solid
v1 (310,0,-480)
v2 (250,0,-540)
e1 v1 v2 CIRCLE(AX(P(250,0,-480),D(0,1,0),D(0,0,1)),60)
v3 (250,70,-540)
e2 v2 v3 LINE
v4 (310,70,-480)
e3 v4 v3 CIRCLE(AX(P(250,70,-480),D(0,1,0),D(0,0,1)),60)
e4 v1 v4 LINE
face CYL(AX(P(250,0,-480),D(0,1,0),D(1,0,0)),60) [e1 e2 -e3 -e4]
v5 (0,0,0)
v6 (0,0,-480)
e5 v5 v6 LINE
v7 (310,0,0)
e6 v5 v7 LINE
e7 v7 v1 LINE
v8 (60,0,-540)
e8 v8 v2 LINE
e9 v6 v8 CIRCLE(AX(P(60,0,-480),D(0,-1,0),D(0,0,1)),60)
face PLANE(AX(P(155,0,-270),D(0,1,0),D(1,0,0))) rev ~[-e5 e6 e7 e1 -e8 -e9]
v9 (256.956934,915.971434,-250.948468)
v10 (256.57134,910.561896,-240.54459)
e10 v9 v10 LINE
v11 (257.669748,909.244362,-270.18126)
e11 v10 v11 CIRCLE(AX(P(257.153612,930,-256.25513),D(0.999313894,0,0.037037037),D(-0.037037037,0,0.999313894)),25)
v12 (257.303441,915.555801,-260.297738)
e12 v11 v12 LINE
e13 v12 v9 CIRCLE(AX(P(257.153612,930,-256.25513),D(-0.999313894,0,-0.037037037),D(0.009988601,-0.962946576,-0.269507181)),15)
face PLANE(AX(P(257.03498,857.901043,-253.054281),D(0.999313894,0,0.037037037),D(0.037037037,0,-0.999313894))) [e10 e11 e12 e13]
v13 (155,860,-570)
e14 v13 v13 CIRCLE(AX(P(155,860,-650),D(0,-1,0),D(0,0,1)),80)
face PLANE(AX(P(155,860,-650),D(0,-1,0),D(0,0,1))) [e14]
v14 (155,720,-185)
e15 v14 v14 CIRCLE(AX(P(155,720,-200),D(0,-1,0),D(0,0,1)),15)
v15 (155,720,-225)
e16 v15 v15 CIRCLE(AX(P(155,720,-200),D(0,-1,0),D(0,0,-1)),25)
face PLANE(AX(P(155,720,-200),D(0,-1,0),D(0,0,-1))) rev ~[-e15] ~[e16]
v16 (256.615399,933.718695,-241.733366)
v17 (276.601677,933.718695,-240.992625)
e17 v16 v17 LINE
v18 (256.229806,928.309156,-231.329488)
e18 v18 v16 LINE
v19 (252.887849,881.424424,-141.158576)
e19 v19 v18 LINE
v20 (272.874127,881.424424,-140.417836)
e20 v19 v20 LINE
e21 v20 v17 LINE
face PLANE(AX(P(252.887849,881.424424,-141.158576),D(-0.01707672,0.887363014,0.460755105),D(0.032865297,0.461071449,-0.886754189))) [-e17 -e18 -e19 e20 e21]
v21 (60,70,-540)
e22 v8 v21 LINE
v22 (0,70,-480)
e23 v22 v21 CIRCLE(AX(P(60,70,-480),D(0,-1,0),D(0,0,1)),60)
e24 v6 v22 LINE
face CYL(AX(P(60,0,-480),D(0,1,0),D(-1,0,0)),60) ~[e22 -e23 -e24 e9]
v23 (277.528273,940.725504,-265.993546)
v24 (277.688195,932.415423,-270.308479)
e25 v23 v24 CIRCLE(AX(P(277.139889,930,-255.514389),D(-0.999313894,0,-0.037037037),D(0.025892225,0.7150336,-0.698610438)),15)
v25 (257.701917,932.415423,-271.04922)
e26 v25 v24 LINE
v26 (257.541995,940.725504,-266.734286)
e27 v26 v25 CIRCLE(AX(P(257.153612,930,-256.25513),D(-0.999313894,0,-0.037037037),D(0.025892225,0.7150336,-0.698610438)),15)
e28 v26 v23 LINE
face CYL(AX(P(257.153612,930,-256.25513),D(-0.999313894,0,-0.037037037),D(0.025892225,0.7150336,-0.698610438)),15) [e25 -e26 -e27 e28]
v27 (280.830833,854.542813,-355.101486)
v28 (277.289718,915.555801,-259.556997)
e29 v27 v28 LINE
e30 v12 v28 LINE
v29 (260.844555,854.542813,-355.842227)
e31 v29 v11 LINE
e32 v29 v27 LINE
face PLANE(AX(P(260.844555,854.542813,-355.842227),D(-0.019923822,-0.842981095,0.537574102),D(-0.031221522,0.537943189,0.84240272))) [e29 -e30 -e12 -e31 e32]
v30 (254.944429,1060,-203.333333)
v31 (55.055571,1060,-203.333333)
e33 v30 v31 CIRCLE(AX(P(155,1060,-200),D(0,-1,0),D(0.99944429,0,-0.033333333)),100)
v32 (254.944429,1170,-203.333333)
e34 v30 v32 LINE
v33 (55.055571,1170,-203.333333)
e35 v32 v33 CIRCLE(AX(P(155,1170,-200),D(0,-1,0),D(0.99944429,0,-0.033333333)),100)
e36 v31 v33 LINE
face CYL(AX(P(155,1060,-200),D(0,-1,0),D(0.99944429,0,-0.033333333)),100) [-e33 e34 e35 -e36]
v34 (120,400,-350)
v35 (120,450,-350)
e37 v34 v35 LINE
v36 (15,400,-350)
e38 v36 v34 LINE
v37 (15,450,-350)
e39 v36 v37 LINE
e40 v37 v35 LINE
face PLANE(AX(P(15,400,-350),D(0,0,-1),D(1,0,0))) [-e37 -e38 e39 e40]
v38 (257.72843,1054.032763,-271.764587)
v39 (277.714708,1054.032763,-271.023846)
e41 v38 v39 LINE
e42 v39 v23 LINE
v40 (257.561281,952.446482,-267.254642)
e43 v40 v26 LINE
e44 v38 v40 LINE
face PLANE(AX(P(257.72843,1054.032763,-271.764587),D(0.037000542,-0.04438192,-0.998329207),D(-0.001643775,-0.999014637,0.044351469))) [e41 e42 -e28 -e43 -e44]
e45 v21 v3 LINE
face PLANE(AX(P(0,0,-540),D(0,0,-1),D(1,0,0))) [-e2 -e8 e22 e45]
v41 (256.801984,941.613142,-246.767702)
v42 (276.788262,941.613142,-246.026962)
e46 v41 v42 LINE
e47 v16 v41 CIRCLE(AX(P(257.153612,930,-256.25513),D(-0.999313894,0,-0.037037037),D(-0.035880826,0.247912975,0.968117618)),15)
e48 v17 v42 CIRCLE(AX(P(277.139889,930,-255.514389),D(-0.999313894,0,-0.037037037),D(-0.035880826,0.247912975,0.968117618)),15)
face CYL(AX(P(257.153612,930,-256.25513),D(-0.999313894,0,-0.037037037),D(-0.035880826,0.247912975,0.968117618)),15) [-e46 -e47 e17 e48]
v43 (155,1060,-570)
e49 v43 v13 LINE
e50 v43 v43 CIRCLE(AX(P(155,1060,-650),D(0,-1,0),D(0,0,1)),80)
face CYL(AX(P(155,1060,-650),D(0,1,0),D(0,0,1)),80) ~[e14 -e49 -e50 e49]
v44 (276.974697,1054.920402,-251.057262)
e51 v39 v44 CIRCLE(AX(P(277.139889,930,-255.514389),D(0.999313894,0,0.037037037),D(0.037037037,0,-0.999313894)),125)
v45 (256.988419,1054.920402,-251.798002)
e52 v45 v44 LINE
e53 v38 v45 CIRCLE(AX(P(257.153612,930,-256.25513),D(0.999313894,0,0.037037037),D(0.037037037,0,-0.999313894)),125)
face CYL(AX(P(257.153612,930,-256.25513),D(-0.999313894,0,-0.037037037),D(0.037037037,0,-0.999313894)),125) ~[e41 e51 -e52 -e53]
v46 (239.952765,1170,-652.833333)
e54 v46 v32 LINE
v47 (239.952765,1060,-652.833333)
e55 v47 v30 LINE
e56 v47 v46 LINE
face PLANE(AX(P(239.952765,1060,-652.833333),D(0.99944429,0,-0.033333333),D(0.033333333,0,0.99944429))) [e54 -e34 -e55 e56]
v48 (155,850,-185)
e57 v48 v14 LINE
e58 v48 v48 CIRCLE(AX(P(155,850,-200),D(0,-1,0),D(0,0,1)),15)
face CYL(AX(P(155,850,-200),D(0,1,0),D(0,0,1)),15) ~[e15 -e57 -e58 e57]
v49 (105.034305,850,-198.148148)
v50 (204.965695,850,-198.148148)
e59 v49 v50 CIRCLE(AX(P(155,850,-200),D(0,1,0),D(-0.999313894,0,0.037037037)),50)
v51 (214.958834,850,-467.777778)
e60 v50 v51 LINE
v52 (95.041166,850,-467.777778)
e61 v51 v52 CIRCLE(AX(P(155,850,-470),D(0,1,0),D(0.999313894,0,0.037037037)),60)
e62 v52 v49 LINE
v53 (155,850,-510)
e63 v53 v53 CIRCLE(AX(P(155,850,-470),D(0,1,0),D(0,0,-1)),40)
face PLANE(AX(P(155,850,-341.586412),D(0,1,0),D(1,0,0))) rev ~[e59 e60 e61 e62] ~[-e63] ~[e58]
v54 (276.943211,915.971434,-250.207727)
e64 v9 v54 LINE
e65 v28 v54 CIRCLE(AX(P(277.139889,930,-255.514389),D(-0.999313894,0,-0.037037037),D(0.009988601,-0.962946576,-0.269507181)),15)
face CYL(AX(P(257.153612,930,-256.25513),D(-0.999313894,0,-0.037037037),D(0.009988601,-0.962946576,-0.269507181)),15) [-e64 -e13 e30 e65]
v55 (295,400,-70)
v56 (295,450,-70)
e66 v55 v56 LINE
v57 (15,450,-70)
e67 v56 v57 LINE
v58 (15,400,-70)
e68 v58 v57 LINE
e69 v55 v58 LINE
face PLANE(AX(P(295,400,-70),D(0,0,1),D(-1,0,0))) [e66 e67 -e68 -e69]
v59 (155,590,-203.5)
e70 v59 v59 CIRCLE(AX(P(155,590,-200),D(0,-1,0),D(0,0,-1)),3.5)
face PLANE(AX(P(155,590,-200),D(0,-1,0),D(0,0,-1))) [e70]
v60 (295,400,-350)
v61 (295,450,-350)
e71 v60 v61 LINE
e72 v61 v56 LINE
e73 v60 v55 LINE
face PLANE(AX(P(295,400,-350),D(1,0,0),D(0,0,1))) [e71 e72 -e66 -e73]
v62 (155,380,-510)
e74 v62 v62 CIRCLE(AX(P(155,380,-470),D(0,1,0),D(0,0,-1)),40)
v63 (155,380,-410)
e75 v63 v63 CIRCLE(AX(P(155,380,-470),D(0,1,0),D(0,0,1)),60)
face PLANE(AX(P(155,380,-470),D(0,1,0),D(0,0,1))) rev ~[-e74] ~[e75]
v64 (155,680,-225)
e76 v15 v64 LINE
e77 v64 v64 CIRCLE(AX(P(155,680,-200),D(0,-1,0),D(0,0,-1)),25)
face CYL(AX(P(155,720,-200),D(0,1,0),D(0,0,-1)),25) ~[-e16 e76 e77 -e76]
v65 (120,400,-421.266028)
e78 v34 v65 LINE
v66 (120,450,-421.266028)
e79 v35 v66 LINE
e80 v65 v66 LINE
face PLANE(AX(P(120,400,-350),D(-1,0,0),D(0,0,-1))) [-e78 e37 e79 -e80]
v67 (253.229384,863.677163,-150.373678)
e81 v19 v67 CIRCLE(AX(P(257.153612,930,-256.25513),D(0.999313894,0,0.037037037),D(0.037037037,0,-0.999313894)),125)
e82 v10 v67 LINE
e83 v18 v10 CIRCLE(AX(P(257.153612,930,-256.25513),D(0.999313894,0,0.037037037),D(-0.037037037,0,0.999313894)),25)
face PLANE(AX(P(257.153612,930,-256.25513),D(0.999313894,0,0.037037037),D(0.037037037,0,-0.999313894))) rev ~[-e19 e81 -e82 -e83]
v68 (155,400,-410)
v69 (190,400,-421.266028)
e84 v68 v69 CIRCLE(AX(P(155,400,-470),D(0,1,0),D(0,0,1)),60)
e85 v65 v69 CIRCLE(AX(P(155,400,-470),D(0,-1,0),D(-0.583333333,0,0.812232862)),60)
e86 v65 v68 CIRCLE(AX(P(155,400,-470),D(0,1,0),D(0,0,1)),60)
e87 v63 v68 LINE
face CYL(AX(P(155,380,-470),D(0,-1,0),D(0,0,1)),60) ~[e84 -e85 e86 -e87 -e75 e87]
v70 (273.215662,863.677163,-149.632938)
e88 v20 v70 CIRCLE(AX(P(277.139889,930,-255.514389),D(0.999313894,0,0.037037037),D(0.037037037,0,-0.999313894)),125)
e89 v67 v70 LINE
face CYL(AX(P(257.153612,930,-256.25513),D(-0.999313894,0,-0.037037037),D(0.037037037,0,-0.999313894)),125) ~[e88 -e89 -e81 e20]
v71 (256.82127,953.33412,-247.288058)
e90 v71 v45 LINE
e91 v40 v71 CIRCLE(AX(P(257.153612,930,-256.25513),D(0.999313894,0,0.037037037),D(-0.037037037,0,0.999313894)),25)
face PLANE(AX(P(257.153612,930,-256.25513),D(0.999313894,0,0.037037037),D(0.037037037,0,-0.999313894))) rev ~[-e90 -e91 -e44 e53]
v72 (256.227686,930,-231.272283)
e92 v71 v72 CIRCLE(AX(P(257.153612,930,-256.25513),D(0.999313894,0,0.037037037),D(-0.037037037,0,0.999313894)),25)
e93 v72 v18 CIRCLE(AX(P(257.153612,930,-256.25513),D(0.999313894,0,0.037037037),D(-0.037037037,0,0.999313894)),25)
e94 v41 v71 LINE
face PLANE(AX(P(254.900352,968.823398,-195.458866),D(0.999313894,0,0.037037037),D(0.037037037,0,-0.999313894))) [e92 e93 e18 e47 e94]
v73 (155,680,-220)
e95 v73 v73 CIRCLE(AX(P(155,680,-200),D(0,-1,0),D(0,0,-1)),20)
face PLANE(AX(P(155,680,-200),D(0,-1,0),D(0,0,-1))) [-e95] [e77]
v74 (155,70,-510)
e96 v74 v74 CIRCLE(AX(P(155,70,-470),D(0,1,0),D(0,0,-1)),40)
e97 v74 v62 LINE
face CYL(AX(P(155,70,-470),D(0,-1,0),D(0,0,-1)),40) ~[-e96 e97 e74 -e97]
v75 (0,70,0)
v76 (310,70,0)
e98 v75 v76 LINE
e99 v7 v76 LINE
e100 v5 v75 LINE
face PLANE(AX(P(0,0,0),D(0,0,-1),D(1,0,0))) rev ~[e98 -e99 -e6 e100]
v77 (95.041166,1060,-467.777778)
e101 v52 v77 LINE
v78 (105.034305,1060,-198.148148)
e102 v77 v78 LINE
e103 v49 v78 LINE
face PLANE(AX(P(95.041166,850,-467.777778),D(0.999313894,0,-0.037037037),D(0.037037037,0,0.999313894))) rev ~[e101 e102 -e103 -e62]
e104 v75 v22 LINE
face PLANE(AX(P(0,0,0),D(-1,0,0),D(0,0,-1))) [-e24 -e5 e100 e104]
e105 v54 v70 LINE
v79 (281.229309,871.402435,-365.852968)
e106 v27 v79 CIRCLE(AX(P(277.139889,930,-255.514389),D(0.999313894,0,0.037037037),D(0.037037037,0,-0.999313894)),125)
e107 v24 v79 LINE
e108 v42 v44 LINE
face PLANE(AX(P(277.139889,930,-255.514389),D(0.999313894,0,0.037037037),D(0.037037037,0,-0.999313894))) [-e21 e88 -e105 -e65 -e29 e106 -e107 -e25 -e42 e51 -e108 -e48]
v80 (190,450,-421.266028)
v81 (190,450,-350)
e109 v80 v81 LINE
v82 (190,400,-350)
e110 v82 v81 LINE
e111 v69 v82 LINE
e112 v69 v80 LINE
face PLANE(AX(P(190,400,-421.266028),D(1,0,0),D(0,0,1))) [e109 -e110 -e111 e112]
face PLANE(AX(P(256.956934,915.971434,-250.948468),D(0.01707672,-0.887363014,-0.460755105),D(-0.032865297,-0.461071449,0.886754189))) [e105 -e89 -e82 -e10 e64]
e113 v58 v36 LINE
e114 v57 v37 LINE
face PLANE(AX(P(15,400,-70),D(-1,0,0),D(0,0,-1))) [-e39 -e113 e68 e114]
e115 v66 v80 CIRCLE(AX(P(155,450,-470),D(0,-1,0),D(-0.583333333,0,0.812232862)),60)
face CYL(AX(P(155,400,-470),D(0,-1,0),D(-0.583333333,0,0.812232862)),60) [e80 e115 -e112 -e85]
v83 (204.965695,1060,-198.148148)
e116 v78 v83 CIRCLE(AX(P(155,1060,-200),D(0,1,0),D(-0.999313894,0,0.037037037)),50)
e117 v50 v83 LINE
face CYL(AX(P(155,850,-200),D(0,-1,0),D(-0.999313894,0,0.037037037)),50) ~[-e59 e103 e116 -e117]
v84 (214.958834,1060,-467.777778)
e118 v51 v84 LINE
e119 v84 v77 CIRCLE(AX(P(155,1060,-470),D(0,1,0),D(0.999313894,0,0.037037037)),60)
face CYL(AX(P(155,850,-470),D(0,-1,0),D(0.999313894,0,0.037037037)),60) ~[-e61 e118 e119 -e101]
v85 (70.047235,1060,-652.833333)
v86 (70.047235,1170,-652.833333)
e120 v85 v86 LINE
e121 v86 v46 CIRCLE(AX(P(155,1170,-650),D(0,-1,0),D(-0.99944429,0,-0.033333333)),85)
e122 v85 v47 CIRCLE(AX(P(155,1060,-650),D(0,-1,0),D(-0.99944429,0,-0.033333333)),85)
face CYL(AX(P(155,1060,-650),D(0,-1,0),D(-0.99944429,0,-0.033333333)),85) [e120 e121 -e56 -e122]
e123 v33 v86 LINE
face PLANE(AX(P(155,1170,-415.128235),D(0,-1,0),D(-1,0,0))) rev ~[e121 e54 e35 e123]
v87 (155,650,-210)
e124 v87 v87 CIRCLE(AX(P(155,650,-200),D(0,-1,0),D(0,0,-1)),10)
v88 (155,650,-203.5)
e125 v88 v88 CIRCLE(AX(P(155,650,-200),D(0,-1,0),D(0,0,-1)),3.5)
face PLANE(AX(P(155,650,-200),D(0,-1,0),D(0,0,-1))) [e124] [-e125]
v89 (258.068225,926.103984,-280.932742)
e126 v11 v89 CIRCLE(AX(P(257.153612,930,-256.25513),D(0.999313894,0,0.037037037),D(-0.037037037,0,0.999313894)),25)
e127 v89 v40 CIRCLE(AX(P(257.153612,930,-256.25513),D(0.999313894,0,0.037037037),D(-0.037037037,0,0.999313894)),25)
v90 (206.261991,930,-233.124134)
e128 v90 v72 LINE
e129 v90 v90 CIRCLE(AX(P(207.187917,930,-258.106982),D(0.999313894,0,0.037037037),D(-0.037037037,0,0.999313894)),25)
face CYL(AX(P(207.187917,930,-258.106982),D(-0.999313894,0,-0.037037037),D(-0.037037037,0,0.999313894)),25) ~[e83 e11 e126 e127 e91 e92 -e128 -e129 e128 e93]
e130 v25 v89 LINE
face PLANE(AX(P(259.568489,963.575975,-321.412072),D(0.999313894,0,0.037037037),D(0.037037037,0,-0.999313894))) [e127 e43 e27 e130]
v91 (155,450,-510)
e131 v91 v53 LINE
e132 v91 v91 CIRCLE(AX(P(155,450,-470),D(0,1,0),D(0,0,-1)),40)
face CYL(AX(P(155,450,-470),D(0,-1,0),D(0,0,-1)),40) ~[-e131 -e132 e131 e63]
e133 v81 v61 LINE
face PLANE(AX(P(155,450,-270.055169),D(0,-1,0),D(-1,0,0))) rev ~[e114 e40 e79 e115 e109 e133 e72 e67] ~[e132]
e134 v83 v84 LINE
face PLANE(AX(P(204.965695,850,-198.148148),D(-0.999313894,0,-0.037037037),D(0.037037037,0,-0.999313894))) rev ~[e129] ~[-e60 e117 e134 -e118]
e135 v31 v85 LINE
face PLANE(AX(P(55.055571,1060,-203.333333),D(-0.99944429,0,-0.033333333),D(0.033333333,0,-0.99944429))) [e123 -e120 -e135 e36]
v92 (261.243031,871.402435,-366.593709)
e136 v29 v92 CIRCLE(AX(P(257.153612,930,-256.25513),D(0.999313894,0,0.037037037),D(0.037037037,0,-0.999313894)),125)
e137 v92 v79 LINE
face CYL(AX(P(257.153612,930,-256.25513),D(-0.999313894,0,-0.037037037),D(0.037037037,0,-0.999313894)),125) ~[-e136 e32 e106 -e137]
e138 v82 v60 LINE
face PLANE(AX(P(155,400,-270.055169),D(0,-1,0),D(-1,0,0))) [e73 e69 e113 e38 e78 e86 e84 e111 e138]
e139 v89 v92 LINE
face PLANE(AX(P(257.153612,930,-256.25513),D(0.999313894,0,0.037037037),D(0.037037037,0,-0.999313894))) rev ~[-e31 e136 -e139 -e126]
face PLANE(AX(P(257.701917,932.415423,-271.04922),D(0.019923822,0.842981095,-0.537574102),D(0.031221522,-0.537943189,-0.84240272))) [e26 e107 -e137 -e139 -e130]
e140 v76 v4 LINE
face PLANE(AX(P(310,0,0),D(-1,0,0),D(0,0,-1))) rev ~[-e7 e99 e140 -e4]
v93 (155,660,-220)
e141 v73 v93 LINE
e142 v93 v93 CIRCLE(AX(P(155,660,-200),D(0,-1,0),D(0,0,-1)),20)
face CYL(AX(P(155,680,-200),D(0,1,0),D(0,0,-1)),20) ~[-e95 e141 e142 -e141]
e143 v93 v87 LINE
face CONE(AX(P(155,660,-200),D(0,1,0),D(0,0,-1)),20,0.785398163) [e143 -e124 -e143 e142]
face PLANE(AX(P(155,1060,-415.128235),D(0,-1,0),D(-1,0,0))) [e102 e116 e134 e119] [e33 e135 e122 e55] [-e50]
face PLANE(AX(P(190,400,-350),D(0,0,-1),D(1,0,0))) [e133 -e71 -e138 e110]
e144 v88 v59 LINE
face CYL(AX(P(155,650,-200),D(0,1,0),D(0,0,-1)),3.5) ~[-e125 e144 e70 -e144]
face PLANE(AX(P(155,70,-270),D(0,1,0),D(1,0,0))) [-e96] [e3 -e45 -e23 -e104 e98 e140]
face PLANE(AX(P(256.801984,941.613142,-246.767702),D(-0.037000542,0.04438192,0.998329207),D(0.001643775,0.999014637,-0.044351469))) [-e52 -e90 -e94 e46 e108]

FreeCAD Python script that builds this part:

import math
import FreeCAD as App
import Part
import Sketcher

V = App.Vector
Q = App.Units.Quantity


def edges_at(feature, points):
    """Names of the edges that pass closest to the given points."""
    edges = feature.Shape.Edges
    near = lambda p: min(range(len(edges)), key=lambda i: edges[i].distToShape(Part.Vertex(*p))[0])
    return sorted({f"Edge{near(p) + 1}" for p in points})

doc = App.newDocument("Part")
body = doc.addObject("PartDesign::Body", "Body")

# Sketch on XZ plane
sketch1 = doc.addObject("Sketcher::SketchObject", "Sketch")
body.addObject(sketch1)
sketch1.AttachmentSupport = (doc.XZ_Plane, [""])
sketch1.MapMode = "FlatFace"
sketch1.addGeometry(Part.LineSegment(V(0, -540, 0), V(0, 0, 0)), False)
sketch1.addGeometry(Part.LineSegment(V(0, 0, 0), V(310, 0, 0)), False)
sketch1.addGeometry(Part.LineSegment(V(310, 0, 0), V(310, -540, 0)), False)
sketch1.addGeometry(Part.LineSegment(V(310, -540, 0), V(0, -540, 0)), False)
sketch1.addConstraint(Sketcher.Constraint("Coincident", 0, 2, 1, 1))
sketch1.addConstraint(Sketcher.Constraint("Coincident", 1, 2, 2, 1))
sketch1.addConstraint(Sketcher.Constraint("Coincident", 2, 2, 3, 1))
sketch1.addConstraint(Sketcher.Constraint("Coincident", 3, 2, 0, 1))
sketch1.addConstraint(Sketcher.Constraint("Vertical", 0))
sketch1.addConstraint(Sketcher.Constraint("Horizontal", 1))
sketch1.addConstraint(Sketcher.Constraint("Vertical", 2))
sketch1.addConstraint(Sketcher.Constraint("Horizontal", 3))
sketch1.addConstraint(Sketcher.Constraint("Coincident", 0, 2, -1, 1))
sketch1.addConstraint(Sketcher.Constraint("DistanceX", 1, 1, 1, 2, Q("310 mm")))
sketch1.addConstraint(Sketcher.Constraint("DistanceY", 0, 1, 0, 2, Q("540 mm")))
pad1 = doc.addObject("PartDesign::Pad", "Pad")
body.addObject(pad1)
pad1.Profile = sketch1
pad1.Length = 70
pad1.Reversed = True
doc.recompute()

fillet = doc.addObject("PartDesign::Fillet", "Fillet")
body.addObject(fillet)
fillet.Base = (pad1, edges_at(pad1, [(0, 35, -540), (310, 35, -540)]))
fillet.Radius = 60

# Sketch on XZ plane
sketch2 = doc.addObject("Sketcher::SketchObject", "Sketch001")
body.addObject(sketch2)
sketch2.AttachmentSupport = (doc.XZ_Plane, [""])
sketch2.MapMode = "FlatFace"
sketch2.AttachmentOffset = App.Placement(V(0, 0, -70), App.Rotation())
sketch2.addGeometry(Part.Circle(V(155, -470, 0), V(0, 0, 1), 40), False)
sketch2.addConstraint(Sketcher.Constraint("Diameter", 0, Q("80 mm")))
sketch2.addConstraint(Sketcher.Constraint("DistanceX", -1, 1, 0, 3, Q("155 mm")))
sketch2.addConstraint(Sketcher.Constraint("DistanceY", 0, 3, -1, 1, Q("470 mm")))
pad2 = doc.addObject("PartDesign::Pad", "Pad001")
body.addObject(pad2)
pad2.Profile = sketch2
pad2.Length = 310
pad2.Reversed = True

# Sketch on XZ plane
sketch3 = doc.addObject("Sketcher::SketchObject", "Sketch002")
body.addObject(sketch3)
sketch3.AttachmentSupport = (doc.XZ_Plane, [""])
sketch3.MapMode = "FlatFace"
sketch3.AttachmentOffset = App.Placement(V(0, 0, -380), App.Rotation())
sketch3.addGeometry(Part.Circle(V(155, -470, 0), V(0, 0, 1), 60), False)
sketch3.addConstraint(Sketcher.Constraint("Diameter", 0, Q("120 mm")))
sketch3.addConstraint(Sketcher.Constraint("DistanceX", -1, 1, 0, 3, Q("155 mm")))
sketch3.addConstraint(Sketcher.Constraint("DistanceY", 0, 3, -1, 1, Q("470 mm")))
pad3 = doc.addObject("PartDesign::Pad", "Pad002")
body.addObject(pad3)
pad3.Profile = sketch3
pad3.Length = 20
pad3.Reversed = True

# Sketch on XZ plane
sketch4 = doc.addObject("Sketcher::SketchObject", "Sketch003")
body.addObject(sketch4)
sketch4.AttachmentSupport = (doc.XZ_Plane, [""])
sketch4.MapMode = "FlatFace"
sketch4.AttachmentOffset = App.Placement(V(0, 0, -400), App.Rotation())
sketch4.addGeometry(Part.LineSegment(V(295, -350, 0), V(190, -350, 0)), False)
sketch4.addGeometry(Part.LineSegment(V(190, -350, 0), V(190, -421.266028, 0)), False)
sketch4.addGeometry(Part.ArcOfCircle(Part.Circle(V(155, -470, 0), V(0, 0, 1), 60), math.radians(125.685335), math.radians(414.314665)), False)
sketch4.addGeometry(Part.LineSegment(V(120, -421.266028, 0), V(120, -350, 0)), False)
sketch4.addGeometry(Part.LineSegment(V(120, -350, 0), V(15, -350, 0)), False)
sketch4.addGeometry(Part.LineSegment(V(15, -350, 0), V(15, -70, 0)), False)
sketch4.addGeometry(Part.LineSegment(V(15, -70, 0), V(295, -70, 0)), False)
sketch4.addGeometry(Part.LineSegment(V(295, -70, 0), V(295, -350, 0)), False)
sketch4.addConstraint(Sketcher.Constraint("Coincident", 0, 2, 1, 1))
sketch4.addConstraint(Sketcher.Constraint("Coincident", 1, 2, 2, 2))
sketch4.addConstraint(Sketcher.Constraint("Coincident", 2, 1, 3, 1))
sketch4.addConstraint(Sketcher.Constraint("Coincident", 3, 2, 4, 1))
sketch4.addConstraint(Sketcher.Constraint("Coincident", 4, 2, 5, 1))
sketch4.addConstraint(Sketcher.Constraint("Coincident", 5, 2, 6, 1))
sketch4.addConstraint(Sketcher.Constraint("Coincident", 6, 2, 7, 1))
sketch4.addConstraint(Sketcher.Constraint("Coincident", 7, 2, 0, 1))
sketch4.addConstraint(Sketcher.Constraint("Horizontal", 0))
sketch4.addConstraint(Sketcher.Constraint("Vertical", 1))
sketch4.addConstraint(Sketcher.Constraint("Vertical", 3))
sketch4.addConstraint(Sketcher.Constraint("Horizontal", 4))
sketch4.addConstraint(Sketcher.Constraint("Vertical", 5))
sketch4.addConstraint(Sketcher.Constraint("Horizontal", 6))
sketch4.addConstraint(Sketcher.Constraint("Vertical", 7))
sketch4.addConstraint(Sketcher.Constraint("Horizontal", 1, 2, 2, 1))
sketch4.addConstraint(Sketcher.Constraint("Horizontal", 0, 2, 3, 2))
sketch4.addConstraint(Sketcher.Constraint("Equal", 0, 4))
sketch4.addConstraint(Sketcher.Constraint("Equal", 6, 5))
sketch4.addConstraint(Sketcher.Constraint("Radius", 2, Q("60 mm")))
sketch4.addConstraint(Sketcher.Constraint("DistanceX", 0, 2, 0, 1, Q("105 mm")))
sketch4.addConstraint(Sketcher.Constraint("DistanceX", 6, 1, 6, 2, Q("280 mm")))
sketch4.addConstraint(Sketcher.Constraint("DistanceX", -1, 1, 2, 3, Q("155 mm")))
sketch4.addConstraint(Sketcher.Constraint("DistanceY", 2, 3, -1, 1, Q("470 mm")))
sketch4.addConstraint(Sketcher.Constraint("DistanceY", 0, 2, -1, 1, Q("350 mm")))
pad4 = doc.addObject("PartDesign::Pad", "Pad003")
body.addObject(pad4)
pad4.Profile = sketch4
pad4.Length = 50
pad4.Reversed = True

# Sketch on XZ plane
sketch5 = doc.addObject("Sketcher::SketchObject", "Sketch004")
body.addObject(sketch5)
sketch5.AttachmentSupport = (doc.XZ_Plane, [""])
sketch5.MapMode = "FlatFace"
sketch5.AttachmentOffset = App.Placement(V(0, 0, -450), App.Rotation())
sketch5.addGeometry(Part.Circle(V(155, -470, 0), V(0, 0, 1), 40), False)
sketch5.addConstraint(Sketcher.Constraint("Diameter", 0, Q("80 mm")))
sketch5.addConstraint(Sketcher.Constraint("DistanceX", -1, 1, 0, 3, Q("155 mm")))
sketch5.addConstraint(Sketcher.Constraint("DistanceY", 0, 3, -1, 1, Q("470 mm")))
pad5 = doc.addObject("PartDesign::Pad", "Pad004")
body.addObject(pad5)
pad5.Profile = sketch5
pad5.Length = 400
pad5.Reversed = True

# Sketch on XZ plane
sketch6 = doc.addObject("Sketcher::SketchObject", "Sketch005")
body.addObject(sketch6)
sketch6.AttachmentSupport = (doc.XZ_Plane, [""])
sketch6.MapMode = "FlatFace"
sketch6.AttachmentOffset = App.Placement(V(0, 0, -850), App.Rotation())
sketch6.addGeometry(Part.LineSegment(V(95.041166, -467.777778, 0), V(105.034305, -198.148148, 0)), False)
sketch6.addGeometry(Part.ArcOfCircle(Part.Circle(V(155, -200, 0), V(0, 0, 1), 50), math.radians(2.122551), math.radians(177.877449)), False)
sketch6.addGeometry(Part.LineSegment(V(204.965695, -198.148148, 0), V(214.958834, -467.777778, 0)), False)
sketch6.addGeometry(Part.ArcOfCircle(Part.Circle(V(155, -470, 0), V(0, 0, 1), 60), math.radians(177.877449), math.radians(362.122551)), False)
sketch6.addConstraint(Sketcher.Constraint("Tangent", 0, 2, 1, 2))
sketch6.addConstraint(Sketcher.Constraint("Tangent", 1, 1, 2, 1))
sketch6.addConstraint(Sketcher.Constraint("Tangent", 2, 2, 3, 2))
sketch6.addConstraint(Sketcher.Constraint("Tangent", 3, 1, 0, 1))
sketch6.addConstraint(Sketcher.Constraint("Horizontal", 0, 2, 1, 1))
sketch6.addConstraint(Sketcher.Constraint("Radius", 1, Q("50 mm")))
sketch6.addConstraint(Sketcher.Constraint("Radius", 3, Q("60 mm")))
sketch6.addConstraint(Sketcher.Constraint("DistanceX", -1, 1, 1, 3, Q("155 mm")))
sketch6.addConstraint(Sketcher.Constraint("DistanceY", 1, 3, -1, 1, Q("200 mm")))
sketch6.addConstraint(Sketcher.Constraint("DistanceY", 3, 3, -1, 1, Q("470 mm")))
pad6 = doc.addObject("PartDesign::Pad", "Pad005")
body.addObject(pad6)
pad6.Profile = sketch6
pad6.Length = 210
pad6.Reversed = True

# Sketch on XZ plane
sketch7 = doc.addObject("Sketcher::SketchObject", "Sketch006")
body.addObject(sketch7)
sketch7.AttachmentSupport = (doc.XZ_Plane, [""])
sketch7.MapMode = "FlatFace"
sketch7.AttachmentOffset = App.Placement(V(0, 0, -1060), App.Rotation())
sketch7.addGeometry(Part.LineSegment(V(70.047235, -652.833333, 0), V(55.055571, -203.333333, 0)), False)
sketch7.addGeometry(Part.ArcOfCircle(Part.Circle(V(155, -200, 0), V(0, 0, 1), 100), math.radians(-1.910213), math.radians(181.910213)), False)
sketch7.addGeometry(Part.LineSegment(V(254.944429, -203.333333, 0), V(239.952765, -652.833333, 0)), False)
sketch7.addGeometry(Part.ArcOfCircle(Part.Circle(V(155, -650, 0), V(0, 0, 1), 85), math.radians(-178.089787), math.radians(-1.910213)), False)
sketch7.addConstraint(Sketcher.Constraint("Tangent", 0, 2, 1, 2))
sketch7.addConstraint(Sketcher.Constraint("Tangent", 1, 1, 2, 1))
sketch7.addConstraint(Sketcher.Constraint("Tangent", 2, 2, 3, 2))
sketch7.addConstraint(Sketcher.Constraint("Tangent", 3, 1, 0, 1))
sketch7.addConstraint(Sketcher.Constraint("Horizontal", 0, 2, 1, 1))
sketch7.addConstraint(Sketcher.Constraint("Radius", 1, Q("100 mm")))
sketch7.addConstraint(Sketcher.Constraint("Radius", 3, Q("85 mm")))
sketch7.addConstraint(Sketcher.Constraint("DistanceX", -1, 1, 1, 3, Q("155 mm")))
sketch7.addConstraint(Sketcher.Constraint("DistanceY", 1, 3, -1, 1, Q("200 mm")))
sketch7.addConstraint(Sketcher.Constraint("DistanceY", 3, 3, -1, 1, Q("650 mm")))
pad7 = doc.addObject("PartDesign::Pad", "Pad006")
body.addObject(pad7)
pad7.Profile = sketch7
pad7.Length = 110
pad7.Reversed = True

# Sketch on XZ plane
sketch8 = doc.addObject("Sketcher::SketchObject", "Sketch007")
body.addObject(sketch8)
sketch8.AttachmentSupport = (doc.XZ_Plane, [""])
sketch8.MapMode = "FlatFace"
sketch8.AttachmentOffset = App.Placement(V(0, 0, -1060), App.Rotation())
sketch8.addGeometry(Part.Circle(V(155, -650, 0), V(0, 0, 1), 80), False)
sketch8.addConstraint(Sketcher.Constraint("Diameter", 0, Q("160 mm")))
sketch8.addConstraint(Sketcher.Constraint("DistanceX", -1, 1, 0, 3, Q("155 mm")))
sketch8.addConstraint(Sketcher.Constraint("DistanceY", 0, 3, -1, 1, Q("650 mm")))
pad8 = doc.addObject("PartDesign::Pad", "Pad007")
body.addObject(pad8)
pad8.Profile = sketch8
pad8.Length = 200

# Sketch on XZ plane
sketch9 = doc.addObject("Sketcher::SketchObject", "Sketch008")
body.addObject(sketch9)
sketch9.AttachmentSupport = (doc.XZ_Plane, [""])
sketch9.MapMode = "FlatFace"
sketch9.AttachmentOffset = App.Placement(V(0, 0, -850), App.Rotation())
sketch9.addGeometry(Part.Circle(V(155, -200, 0), V(0, 0, 1), 15), False)
sketch9.addConstraint(Sketcher.Constraint("Diameter", 0, Q("30 mm")))
sketch9.addConstraint(Sketcher.Constraint("DistanceX", -1, 1, 0, 3, Q("155 mm")))
sketch9.addConstraint(Sketcher.Constraint("DistanceY", 0, 3, -1, 1, Q("200 mm")))
pad9 = doc.addObject("PartDesign::Pad", "Pad008")
body.addObject(pad9)
pad9.Profile = sketch9
pad9.Length = 130

# Sketch on XZ plane
sketch10 = doc.addObject("Sketcher::SketchObject", "Sketch009")
body.addObject(sketch10)
sketch10.AttachmentSupport = (doc.XZ_Plane, [""])
sketch10.MapMode = "FlatFace"
sketch10.AttachmentOffset = App.Placement(V(0, 0, -720), App.Rotation())
sketch10.addGeometry(Part.Circle(V(155, -200, 0), V(0, 0, 1), 25), False)
sketch10.addConstraint(Sketcher.Constraint("Diameter", 0, Q("50 mm")))
sketch10.addConstraint(Sketcher.Constraint("DistanceX", -1, 1, 0, 3, Q("155 mm")))
sketch10.addConstraint(Sketcher.Constraint("DistanceY", 0, 3, -1, 1, Q("200 mm")))
pad10 = doc.addObject("PartDesign::Pad", "Pad009")
body.addObject(pad10)
pad10.Profile = sketch10
pad10.Length = 40

# Sketch on XZ plane
sketch11 = doc.addObject("Sketcher::SketchObject", "Sketch010")
body.addObject(sketch11)
sketch11.AttachmentSupport = (doc.XZ_Plane, [""])
sketch11.MapMode = "FlatFace"
sketch11.AttachmentOffset = App.Placement(V(0, 0, -680), App.Rotation())
sketch11.addGeometry(Part.Circle(V(155, -200, 0), V(0, 0, 1), 20), False)
sketch11.addConstraint(Sketcher.Constraint("Diameter", 0, Q("40 mm")))
sketch11.addConstraint(Sketcher.Constraint("DistanceX", -1, 1, 0, 3, Q("155 mm")))
sketch11.addConstraint(Sketcher.Constraint("DistanceY", 0, 3, -1, 1, Q("200 mm")))
pad11 = doc.addObject("PartDesign::Pad", "Pad010")
body.addObject(pad11)
pad11.Profile = sketch11
pad11.Length = 30
doc.recompute()

chamfer = doc.addObject("PartDesign::Chamfer", "Chamfer")
body.addObject(chamfer)
chamfer.Base = (pad11, edges_at(pad11, [(155, 650, -180)]))
chamfer.Size = 10

# Sketch on XZ plane
sketch12 = doc.addObject("Sketcher::SketchObject", "Sketch011")
body.addObject(sketch12)
sketch12.AttachmentSupport = (doc.XZ_Plane, [""])
sketch12.MapMode = "FlatFace"
sketch12.AttachmentOffset = App.Placement(V(0, 0, -650), App.Rotation())
sketch12.addGeometry(Part.Circle(V(155, -200, 0), V(0, 0, 1), 3.5), False)
sketch12.addConstraint(Sketcher.Constraint("Diameter", 0, Q("7 mm")))
sketch12.addConstraint(Sketcher.Constraint("DistanceX", -1, 1, 0, 3, Q("155 mm")))
sketch12.addConstraint(Sketcher.Constraint("DistanceY", 0, 3, -1, 1, Q("200 mm")))
pad12 = doc.addObject("PartDesign::Pad", "Pad011")
body.addObject(pad12)
pad12.Profile = sketch12
pad12.Length = 60

# Sketch on an angled plane
sketch13 = doc.addObject("Sketcher::SketchObject", "Sketch012")
body.addObject(sketch13)
sketch13.Placement = App.Placement(V(197.35075, 0, 7.314305), App.Rotation(V(0.037037037, 0, -0.999313894), V(0, 1.000000001, 0), V(0.999313894, 0, 0.037037037), "ZXY"))
sketch13.addGeometry(Part.Circle(V(265.60352, 930.000002, 0), V(0, 0, 1), 25), False)
sketch13.addConstraint(Sketcher.Constraint("Diameter", 0, Q("50 mm")))
sketch13.addConstraint(Sketcher.Constraint("DistanceY", -1, 1, 0, 3, Q("930.000002 mm")))
sketch13.addConstraint(Sketcher.Constraint("DistanceX", -1, 1, 0, 3, Q("265.60352 mm")))
pad13 = doc.addObject("PartDesign::Pad", "Pad012")
body.addObject(pad13)
pad13.Profile = sketch13
pad13.Length = 50

# Sketch on an angled plane
sketch14 = doc.addObject("Sketcher::SketchObject", "Sketch013")
body.addObject(sketch14)
sketch14.Placement = App.Placement(V(247.316444, 0, 9.166157), App.Rotation(V(0.037037037, 0, -0.999313894), V(0, 1.000000001, 0), V(0.999313894, 0, 0.037037037), "ZXY"))
sketch14.addGeometry(Part.Circle(V(265.60352, 930.000002, 0), V(0, 0, 1), 125), False)
sketch14.addConstraint(Sketcher.Constraint("Diameter", 0, Q("250 mm")))
sketch14.addConstraint(Sketcher.Constraint("DistanceY", -1, 1, 0, 3, Q("930.000002 mm")))
sketch14.addConstraint(Sketcher.Constraint("DistanceX", -1, 1, 0, 3, Q("265.60352 mm")))
pad14 = doc.addObject("PartDesign::Pad", "Pad013")
body.addObject(pad14)
pad14.Profile = sketch14
pad14.Length = 20

# Sketch on an angled plane
sketch15 = doc.addObject("Sketcher::SketchObject", "Sketch014")
body.addObject(sketch15)
sketch15.Placement = App.Placement(V(247.316444, 0, 9.166157), App.Rotation(V(0.037037037, 0, -0.999313894), V(0, 1.000000001, 0), V(0.999313894, 0, 0.037037037), "ZXY"))
sketch15.addGeometry(Part.LineSegment(V(150.427943, 881.424425, 0), V(251.071785, 933.718696, 0)), False)
sketch15.addGeometry(Part.ArcOfCircle(Part.Circle(V(265.60352, 930.000002, 0), V(0, 0, 1), 15), math.radians(129.266583), math.radians(165.645953)), False)
sketch15.addGeometry(Part.LineSegment(V(256.109578, 941.613144, 0), V(261.143332, 1054.920403, 0)), False)
sketch15.addGeometry(Part.ArcOfCircle(Part.Circle(V(265.60352, 930.000002, 0), V(0, 0, 1), 125), math.radians(92.044833), math.radians(202.867702)), False)
sketch15.addGeometry(Part.ArcOfCircle(Part.Circle(V(265.60352, 930.000002, 0), V(0, 0, 1), 125), math.radians(0), math.radians(82.867702)), False)
sketch15.addGeometry(Part.LineSegment(V(281.123625, 1054.032765, 0), V(276.089871, 940.725506, 0)), False)
sketch15.addGeometry(Part.ArcOfCircle(Part.Circle(V(265.60352, 930.000002, 0), V(0, 0, 1), 15), math.radians(9.266583), math.radians(45.645953)), False)
sketch15.addGeometry(Part.LineSegment(V(280.407767, 932.415425, 0), V(376.017855, 871.402437, 0)), False)
sketch15.addGeometry(Part.ArcOfCircle(Part.Circle(V(265.60352, 930.000002, 0), V(0, 0, 1), 125), math.radians(-27.955167), math.radians(0)), False)
sketch15.addGeometry(Part.LineSegment(V(260.293214, 915.971436, 0), V(159.649372, 863.677165, 0)), False)
sketch15.addGeometry(Part.ArcOfCircle(Part.Circle(V(265.60352, 930.000002, 0), V(0, 0, 1), 125), math.radians(-147.955166), math.radians(-37.132298)), False)
sketch15.addGeometry(Part.LineSegment(V(365.258991, 854.542815, 0), V(269.648903, 915.555803, 0)), False)
sketch15.addGeometry(Part.ArcOfCircle(Part.Circle(V(265.60352, 930.000002, 0), V(0, 0, 1), 15), math.radians(-110.733417), math.radians(-74.354047)), False)
sketch15.addConstraint(Sketcher.Constraint("Coincident", 0, 2, 1, 2))
sketch15.addConstraint(Sketcher.Constraint("Coincident", 1, 1, 2, 1))
sketch15.addConstraint(Sketcher.Constraint("Coincident", 2, 2, 3, 1))
sketch15.addConstraint(Sketcher.Constraint("Coincident", 3, 2, 0, 1))
sketch15.addConstraint(Sketcher.Constraint("Coincident", 4, 2, 5, 1))
sketch15.addConstraint(Sketcher.Constraint("Coincident", 5, 2, 6, 2))
sketch15.addConstraint(Sketcher.Constraint("Coincident", 6, 1, 7, 1))
sketch15.addConstraint(Sketcher.Constraint("Coincident", 7, 2, 8, 1))
sketch15.addConstraint(Sketcher.Constraint("Tangent", 8, 2, 4, 1))
sketch15.addConstraint(Sketcher.Constraint("Coincident", 9, 2, 10, 1))
sketch15.addConstraint(Sketcher.Constraint("Coincident", 10, 2, 11, 1))
sketch15.addConstraint(Sketcher.Constraint("Coincident", 11, 2, 12, 2))
sketch15.addConstraint(Sketcher.Constraint("Coincident", 12, 1, 9, 1))
sketch15.addConstraint(Sketcher.Constraint("Coincident", 3, 3, 1, 3))
sketch15.addConstraint(Sketcher.Constraint("Coincident", 4, 3, 1, 3))
sketch15.addConstraint(Sketcher.Constraint("Coincident", 6, 3, 1, 3))
sketch15.addConstraint(Sketcher.Constraint("Coincident", 10, 3, 1, 3))
sketch15.addConstraint(Sketcher.Constraint("Coincident", 12, 3, 1, 3))
sketch15.addConstraint(Sketcher.Constraint("Equal", 3, 4))
sketch15.addConstraint(Sketcher.Constraint("Equal", 1, 6))
sketch15.addConstraint(Sketcher.Constraint("Equal", 4, 8))
sketch15.addConstraint(Sketcher.Constraint("Equal", 8, 10))
sketch15.addConstraint(Sketcher.Constraint("Equal", 6, 12))
sketch15.addConstraint(Sketcher.Constraint("Parallel", 2, 5))
sketch15.addConstraint(Sketcher.Constraint("Parallel", 0, 9))
sketch15.addConstraint(Sketcher.Constraint("Parallel", 7, 11))
sketch15.addConstraint(Sketcher.Constraint("Horizontal", 12, 3, 8, 2))
sketch15.addConstraint(Sketcher.Constraint("Equal", 0, 2))
sketch15.addConstraint(Sketcher.Constraint("Equal", 2, 5))
sketch15.addConstraint(Sketcher.Constraint("Equal", 5, 7))
sketch15.addConstraint(Sketcher.Constraint("Equal", 7, 9))
sketch15.addConstraint(Sketcher.Constraint("Equal", 9, 11))
sketch15.addConstraint(Sketcher.Constraint("Radius", 1, Q("15 mm")))
sketch15.addConstraint(Sketcher.Constraint("Radius", 3, Q("125 mm")))
sketch15.addConstraint(Sketcher.Constraint("DistanceY", -1, 1, 1, 3, Q("930.000002 mm")))
sketch15.addConstraint(Sketcher.Constraint("DistanceY", 1, 3, 2, 2, Q("124.920402 mm")))
sketch15.addConstraint(Sketcher.Constraint("DistanceY", 11, 2, 8, 3, Q("14.444199 mm")))
sketch15.addConstraint(Sketcher.Constraint("Distance", 0, Q("113.419018 mm")))
sketch15.addConstraint(Sketcher.Constraint("DistanceX", -1, 1, 1, 3, Q("265.60352 mm")))
sketch15.addConstraint(Sketcher.Constraint("DistanceX", 3, 2, 0, 2, Q("100.643842 mm")))
pocket1 = doc.addObject("PartDesign::Pocket", "Pocket")
body.addObject(pocket1)
pocket1.Profile = sketch15
pocket1.Length = 20
pocket1.Reversed = True

doc.recompute()
